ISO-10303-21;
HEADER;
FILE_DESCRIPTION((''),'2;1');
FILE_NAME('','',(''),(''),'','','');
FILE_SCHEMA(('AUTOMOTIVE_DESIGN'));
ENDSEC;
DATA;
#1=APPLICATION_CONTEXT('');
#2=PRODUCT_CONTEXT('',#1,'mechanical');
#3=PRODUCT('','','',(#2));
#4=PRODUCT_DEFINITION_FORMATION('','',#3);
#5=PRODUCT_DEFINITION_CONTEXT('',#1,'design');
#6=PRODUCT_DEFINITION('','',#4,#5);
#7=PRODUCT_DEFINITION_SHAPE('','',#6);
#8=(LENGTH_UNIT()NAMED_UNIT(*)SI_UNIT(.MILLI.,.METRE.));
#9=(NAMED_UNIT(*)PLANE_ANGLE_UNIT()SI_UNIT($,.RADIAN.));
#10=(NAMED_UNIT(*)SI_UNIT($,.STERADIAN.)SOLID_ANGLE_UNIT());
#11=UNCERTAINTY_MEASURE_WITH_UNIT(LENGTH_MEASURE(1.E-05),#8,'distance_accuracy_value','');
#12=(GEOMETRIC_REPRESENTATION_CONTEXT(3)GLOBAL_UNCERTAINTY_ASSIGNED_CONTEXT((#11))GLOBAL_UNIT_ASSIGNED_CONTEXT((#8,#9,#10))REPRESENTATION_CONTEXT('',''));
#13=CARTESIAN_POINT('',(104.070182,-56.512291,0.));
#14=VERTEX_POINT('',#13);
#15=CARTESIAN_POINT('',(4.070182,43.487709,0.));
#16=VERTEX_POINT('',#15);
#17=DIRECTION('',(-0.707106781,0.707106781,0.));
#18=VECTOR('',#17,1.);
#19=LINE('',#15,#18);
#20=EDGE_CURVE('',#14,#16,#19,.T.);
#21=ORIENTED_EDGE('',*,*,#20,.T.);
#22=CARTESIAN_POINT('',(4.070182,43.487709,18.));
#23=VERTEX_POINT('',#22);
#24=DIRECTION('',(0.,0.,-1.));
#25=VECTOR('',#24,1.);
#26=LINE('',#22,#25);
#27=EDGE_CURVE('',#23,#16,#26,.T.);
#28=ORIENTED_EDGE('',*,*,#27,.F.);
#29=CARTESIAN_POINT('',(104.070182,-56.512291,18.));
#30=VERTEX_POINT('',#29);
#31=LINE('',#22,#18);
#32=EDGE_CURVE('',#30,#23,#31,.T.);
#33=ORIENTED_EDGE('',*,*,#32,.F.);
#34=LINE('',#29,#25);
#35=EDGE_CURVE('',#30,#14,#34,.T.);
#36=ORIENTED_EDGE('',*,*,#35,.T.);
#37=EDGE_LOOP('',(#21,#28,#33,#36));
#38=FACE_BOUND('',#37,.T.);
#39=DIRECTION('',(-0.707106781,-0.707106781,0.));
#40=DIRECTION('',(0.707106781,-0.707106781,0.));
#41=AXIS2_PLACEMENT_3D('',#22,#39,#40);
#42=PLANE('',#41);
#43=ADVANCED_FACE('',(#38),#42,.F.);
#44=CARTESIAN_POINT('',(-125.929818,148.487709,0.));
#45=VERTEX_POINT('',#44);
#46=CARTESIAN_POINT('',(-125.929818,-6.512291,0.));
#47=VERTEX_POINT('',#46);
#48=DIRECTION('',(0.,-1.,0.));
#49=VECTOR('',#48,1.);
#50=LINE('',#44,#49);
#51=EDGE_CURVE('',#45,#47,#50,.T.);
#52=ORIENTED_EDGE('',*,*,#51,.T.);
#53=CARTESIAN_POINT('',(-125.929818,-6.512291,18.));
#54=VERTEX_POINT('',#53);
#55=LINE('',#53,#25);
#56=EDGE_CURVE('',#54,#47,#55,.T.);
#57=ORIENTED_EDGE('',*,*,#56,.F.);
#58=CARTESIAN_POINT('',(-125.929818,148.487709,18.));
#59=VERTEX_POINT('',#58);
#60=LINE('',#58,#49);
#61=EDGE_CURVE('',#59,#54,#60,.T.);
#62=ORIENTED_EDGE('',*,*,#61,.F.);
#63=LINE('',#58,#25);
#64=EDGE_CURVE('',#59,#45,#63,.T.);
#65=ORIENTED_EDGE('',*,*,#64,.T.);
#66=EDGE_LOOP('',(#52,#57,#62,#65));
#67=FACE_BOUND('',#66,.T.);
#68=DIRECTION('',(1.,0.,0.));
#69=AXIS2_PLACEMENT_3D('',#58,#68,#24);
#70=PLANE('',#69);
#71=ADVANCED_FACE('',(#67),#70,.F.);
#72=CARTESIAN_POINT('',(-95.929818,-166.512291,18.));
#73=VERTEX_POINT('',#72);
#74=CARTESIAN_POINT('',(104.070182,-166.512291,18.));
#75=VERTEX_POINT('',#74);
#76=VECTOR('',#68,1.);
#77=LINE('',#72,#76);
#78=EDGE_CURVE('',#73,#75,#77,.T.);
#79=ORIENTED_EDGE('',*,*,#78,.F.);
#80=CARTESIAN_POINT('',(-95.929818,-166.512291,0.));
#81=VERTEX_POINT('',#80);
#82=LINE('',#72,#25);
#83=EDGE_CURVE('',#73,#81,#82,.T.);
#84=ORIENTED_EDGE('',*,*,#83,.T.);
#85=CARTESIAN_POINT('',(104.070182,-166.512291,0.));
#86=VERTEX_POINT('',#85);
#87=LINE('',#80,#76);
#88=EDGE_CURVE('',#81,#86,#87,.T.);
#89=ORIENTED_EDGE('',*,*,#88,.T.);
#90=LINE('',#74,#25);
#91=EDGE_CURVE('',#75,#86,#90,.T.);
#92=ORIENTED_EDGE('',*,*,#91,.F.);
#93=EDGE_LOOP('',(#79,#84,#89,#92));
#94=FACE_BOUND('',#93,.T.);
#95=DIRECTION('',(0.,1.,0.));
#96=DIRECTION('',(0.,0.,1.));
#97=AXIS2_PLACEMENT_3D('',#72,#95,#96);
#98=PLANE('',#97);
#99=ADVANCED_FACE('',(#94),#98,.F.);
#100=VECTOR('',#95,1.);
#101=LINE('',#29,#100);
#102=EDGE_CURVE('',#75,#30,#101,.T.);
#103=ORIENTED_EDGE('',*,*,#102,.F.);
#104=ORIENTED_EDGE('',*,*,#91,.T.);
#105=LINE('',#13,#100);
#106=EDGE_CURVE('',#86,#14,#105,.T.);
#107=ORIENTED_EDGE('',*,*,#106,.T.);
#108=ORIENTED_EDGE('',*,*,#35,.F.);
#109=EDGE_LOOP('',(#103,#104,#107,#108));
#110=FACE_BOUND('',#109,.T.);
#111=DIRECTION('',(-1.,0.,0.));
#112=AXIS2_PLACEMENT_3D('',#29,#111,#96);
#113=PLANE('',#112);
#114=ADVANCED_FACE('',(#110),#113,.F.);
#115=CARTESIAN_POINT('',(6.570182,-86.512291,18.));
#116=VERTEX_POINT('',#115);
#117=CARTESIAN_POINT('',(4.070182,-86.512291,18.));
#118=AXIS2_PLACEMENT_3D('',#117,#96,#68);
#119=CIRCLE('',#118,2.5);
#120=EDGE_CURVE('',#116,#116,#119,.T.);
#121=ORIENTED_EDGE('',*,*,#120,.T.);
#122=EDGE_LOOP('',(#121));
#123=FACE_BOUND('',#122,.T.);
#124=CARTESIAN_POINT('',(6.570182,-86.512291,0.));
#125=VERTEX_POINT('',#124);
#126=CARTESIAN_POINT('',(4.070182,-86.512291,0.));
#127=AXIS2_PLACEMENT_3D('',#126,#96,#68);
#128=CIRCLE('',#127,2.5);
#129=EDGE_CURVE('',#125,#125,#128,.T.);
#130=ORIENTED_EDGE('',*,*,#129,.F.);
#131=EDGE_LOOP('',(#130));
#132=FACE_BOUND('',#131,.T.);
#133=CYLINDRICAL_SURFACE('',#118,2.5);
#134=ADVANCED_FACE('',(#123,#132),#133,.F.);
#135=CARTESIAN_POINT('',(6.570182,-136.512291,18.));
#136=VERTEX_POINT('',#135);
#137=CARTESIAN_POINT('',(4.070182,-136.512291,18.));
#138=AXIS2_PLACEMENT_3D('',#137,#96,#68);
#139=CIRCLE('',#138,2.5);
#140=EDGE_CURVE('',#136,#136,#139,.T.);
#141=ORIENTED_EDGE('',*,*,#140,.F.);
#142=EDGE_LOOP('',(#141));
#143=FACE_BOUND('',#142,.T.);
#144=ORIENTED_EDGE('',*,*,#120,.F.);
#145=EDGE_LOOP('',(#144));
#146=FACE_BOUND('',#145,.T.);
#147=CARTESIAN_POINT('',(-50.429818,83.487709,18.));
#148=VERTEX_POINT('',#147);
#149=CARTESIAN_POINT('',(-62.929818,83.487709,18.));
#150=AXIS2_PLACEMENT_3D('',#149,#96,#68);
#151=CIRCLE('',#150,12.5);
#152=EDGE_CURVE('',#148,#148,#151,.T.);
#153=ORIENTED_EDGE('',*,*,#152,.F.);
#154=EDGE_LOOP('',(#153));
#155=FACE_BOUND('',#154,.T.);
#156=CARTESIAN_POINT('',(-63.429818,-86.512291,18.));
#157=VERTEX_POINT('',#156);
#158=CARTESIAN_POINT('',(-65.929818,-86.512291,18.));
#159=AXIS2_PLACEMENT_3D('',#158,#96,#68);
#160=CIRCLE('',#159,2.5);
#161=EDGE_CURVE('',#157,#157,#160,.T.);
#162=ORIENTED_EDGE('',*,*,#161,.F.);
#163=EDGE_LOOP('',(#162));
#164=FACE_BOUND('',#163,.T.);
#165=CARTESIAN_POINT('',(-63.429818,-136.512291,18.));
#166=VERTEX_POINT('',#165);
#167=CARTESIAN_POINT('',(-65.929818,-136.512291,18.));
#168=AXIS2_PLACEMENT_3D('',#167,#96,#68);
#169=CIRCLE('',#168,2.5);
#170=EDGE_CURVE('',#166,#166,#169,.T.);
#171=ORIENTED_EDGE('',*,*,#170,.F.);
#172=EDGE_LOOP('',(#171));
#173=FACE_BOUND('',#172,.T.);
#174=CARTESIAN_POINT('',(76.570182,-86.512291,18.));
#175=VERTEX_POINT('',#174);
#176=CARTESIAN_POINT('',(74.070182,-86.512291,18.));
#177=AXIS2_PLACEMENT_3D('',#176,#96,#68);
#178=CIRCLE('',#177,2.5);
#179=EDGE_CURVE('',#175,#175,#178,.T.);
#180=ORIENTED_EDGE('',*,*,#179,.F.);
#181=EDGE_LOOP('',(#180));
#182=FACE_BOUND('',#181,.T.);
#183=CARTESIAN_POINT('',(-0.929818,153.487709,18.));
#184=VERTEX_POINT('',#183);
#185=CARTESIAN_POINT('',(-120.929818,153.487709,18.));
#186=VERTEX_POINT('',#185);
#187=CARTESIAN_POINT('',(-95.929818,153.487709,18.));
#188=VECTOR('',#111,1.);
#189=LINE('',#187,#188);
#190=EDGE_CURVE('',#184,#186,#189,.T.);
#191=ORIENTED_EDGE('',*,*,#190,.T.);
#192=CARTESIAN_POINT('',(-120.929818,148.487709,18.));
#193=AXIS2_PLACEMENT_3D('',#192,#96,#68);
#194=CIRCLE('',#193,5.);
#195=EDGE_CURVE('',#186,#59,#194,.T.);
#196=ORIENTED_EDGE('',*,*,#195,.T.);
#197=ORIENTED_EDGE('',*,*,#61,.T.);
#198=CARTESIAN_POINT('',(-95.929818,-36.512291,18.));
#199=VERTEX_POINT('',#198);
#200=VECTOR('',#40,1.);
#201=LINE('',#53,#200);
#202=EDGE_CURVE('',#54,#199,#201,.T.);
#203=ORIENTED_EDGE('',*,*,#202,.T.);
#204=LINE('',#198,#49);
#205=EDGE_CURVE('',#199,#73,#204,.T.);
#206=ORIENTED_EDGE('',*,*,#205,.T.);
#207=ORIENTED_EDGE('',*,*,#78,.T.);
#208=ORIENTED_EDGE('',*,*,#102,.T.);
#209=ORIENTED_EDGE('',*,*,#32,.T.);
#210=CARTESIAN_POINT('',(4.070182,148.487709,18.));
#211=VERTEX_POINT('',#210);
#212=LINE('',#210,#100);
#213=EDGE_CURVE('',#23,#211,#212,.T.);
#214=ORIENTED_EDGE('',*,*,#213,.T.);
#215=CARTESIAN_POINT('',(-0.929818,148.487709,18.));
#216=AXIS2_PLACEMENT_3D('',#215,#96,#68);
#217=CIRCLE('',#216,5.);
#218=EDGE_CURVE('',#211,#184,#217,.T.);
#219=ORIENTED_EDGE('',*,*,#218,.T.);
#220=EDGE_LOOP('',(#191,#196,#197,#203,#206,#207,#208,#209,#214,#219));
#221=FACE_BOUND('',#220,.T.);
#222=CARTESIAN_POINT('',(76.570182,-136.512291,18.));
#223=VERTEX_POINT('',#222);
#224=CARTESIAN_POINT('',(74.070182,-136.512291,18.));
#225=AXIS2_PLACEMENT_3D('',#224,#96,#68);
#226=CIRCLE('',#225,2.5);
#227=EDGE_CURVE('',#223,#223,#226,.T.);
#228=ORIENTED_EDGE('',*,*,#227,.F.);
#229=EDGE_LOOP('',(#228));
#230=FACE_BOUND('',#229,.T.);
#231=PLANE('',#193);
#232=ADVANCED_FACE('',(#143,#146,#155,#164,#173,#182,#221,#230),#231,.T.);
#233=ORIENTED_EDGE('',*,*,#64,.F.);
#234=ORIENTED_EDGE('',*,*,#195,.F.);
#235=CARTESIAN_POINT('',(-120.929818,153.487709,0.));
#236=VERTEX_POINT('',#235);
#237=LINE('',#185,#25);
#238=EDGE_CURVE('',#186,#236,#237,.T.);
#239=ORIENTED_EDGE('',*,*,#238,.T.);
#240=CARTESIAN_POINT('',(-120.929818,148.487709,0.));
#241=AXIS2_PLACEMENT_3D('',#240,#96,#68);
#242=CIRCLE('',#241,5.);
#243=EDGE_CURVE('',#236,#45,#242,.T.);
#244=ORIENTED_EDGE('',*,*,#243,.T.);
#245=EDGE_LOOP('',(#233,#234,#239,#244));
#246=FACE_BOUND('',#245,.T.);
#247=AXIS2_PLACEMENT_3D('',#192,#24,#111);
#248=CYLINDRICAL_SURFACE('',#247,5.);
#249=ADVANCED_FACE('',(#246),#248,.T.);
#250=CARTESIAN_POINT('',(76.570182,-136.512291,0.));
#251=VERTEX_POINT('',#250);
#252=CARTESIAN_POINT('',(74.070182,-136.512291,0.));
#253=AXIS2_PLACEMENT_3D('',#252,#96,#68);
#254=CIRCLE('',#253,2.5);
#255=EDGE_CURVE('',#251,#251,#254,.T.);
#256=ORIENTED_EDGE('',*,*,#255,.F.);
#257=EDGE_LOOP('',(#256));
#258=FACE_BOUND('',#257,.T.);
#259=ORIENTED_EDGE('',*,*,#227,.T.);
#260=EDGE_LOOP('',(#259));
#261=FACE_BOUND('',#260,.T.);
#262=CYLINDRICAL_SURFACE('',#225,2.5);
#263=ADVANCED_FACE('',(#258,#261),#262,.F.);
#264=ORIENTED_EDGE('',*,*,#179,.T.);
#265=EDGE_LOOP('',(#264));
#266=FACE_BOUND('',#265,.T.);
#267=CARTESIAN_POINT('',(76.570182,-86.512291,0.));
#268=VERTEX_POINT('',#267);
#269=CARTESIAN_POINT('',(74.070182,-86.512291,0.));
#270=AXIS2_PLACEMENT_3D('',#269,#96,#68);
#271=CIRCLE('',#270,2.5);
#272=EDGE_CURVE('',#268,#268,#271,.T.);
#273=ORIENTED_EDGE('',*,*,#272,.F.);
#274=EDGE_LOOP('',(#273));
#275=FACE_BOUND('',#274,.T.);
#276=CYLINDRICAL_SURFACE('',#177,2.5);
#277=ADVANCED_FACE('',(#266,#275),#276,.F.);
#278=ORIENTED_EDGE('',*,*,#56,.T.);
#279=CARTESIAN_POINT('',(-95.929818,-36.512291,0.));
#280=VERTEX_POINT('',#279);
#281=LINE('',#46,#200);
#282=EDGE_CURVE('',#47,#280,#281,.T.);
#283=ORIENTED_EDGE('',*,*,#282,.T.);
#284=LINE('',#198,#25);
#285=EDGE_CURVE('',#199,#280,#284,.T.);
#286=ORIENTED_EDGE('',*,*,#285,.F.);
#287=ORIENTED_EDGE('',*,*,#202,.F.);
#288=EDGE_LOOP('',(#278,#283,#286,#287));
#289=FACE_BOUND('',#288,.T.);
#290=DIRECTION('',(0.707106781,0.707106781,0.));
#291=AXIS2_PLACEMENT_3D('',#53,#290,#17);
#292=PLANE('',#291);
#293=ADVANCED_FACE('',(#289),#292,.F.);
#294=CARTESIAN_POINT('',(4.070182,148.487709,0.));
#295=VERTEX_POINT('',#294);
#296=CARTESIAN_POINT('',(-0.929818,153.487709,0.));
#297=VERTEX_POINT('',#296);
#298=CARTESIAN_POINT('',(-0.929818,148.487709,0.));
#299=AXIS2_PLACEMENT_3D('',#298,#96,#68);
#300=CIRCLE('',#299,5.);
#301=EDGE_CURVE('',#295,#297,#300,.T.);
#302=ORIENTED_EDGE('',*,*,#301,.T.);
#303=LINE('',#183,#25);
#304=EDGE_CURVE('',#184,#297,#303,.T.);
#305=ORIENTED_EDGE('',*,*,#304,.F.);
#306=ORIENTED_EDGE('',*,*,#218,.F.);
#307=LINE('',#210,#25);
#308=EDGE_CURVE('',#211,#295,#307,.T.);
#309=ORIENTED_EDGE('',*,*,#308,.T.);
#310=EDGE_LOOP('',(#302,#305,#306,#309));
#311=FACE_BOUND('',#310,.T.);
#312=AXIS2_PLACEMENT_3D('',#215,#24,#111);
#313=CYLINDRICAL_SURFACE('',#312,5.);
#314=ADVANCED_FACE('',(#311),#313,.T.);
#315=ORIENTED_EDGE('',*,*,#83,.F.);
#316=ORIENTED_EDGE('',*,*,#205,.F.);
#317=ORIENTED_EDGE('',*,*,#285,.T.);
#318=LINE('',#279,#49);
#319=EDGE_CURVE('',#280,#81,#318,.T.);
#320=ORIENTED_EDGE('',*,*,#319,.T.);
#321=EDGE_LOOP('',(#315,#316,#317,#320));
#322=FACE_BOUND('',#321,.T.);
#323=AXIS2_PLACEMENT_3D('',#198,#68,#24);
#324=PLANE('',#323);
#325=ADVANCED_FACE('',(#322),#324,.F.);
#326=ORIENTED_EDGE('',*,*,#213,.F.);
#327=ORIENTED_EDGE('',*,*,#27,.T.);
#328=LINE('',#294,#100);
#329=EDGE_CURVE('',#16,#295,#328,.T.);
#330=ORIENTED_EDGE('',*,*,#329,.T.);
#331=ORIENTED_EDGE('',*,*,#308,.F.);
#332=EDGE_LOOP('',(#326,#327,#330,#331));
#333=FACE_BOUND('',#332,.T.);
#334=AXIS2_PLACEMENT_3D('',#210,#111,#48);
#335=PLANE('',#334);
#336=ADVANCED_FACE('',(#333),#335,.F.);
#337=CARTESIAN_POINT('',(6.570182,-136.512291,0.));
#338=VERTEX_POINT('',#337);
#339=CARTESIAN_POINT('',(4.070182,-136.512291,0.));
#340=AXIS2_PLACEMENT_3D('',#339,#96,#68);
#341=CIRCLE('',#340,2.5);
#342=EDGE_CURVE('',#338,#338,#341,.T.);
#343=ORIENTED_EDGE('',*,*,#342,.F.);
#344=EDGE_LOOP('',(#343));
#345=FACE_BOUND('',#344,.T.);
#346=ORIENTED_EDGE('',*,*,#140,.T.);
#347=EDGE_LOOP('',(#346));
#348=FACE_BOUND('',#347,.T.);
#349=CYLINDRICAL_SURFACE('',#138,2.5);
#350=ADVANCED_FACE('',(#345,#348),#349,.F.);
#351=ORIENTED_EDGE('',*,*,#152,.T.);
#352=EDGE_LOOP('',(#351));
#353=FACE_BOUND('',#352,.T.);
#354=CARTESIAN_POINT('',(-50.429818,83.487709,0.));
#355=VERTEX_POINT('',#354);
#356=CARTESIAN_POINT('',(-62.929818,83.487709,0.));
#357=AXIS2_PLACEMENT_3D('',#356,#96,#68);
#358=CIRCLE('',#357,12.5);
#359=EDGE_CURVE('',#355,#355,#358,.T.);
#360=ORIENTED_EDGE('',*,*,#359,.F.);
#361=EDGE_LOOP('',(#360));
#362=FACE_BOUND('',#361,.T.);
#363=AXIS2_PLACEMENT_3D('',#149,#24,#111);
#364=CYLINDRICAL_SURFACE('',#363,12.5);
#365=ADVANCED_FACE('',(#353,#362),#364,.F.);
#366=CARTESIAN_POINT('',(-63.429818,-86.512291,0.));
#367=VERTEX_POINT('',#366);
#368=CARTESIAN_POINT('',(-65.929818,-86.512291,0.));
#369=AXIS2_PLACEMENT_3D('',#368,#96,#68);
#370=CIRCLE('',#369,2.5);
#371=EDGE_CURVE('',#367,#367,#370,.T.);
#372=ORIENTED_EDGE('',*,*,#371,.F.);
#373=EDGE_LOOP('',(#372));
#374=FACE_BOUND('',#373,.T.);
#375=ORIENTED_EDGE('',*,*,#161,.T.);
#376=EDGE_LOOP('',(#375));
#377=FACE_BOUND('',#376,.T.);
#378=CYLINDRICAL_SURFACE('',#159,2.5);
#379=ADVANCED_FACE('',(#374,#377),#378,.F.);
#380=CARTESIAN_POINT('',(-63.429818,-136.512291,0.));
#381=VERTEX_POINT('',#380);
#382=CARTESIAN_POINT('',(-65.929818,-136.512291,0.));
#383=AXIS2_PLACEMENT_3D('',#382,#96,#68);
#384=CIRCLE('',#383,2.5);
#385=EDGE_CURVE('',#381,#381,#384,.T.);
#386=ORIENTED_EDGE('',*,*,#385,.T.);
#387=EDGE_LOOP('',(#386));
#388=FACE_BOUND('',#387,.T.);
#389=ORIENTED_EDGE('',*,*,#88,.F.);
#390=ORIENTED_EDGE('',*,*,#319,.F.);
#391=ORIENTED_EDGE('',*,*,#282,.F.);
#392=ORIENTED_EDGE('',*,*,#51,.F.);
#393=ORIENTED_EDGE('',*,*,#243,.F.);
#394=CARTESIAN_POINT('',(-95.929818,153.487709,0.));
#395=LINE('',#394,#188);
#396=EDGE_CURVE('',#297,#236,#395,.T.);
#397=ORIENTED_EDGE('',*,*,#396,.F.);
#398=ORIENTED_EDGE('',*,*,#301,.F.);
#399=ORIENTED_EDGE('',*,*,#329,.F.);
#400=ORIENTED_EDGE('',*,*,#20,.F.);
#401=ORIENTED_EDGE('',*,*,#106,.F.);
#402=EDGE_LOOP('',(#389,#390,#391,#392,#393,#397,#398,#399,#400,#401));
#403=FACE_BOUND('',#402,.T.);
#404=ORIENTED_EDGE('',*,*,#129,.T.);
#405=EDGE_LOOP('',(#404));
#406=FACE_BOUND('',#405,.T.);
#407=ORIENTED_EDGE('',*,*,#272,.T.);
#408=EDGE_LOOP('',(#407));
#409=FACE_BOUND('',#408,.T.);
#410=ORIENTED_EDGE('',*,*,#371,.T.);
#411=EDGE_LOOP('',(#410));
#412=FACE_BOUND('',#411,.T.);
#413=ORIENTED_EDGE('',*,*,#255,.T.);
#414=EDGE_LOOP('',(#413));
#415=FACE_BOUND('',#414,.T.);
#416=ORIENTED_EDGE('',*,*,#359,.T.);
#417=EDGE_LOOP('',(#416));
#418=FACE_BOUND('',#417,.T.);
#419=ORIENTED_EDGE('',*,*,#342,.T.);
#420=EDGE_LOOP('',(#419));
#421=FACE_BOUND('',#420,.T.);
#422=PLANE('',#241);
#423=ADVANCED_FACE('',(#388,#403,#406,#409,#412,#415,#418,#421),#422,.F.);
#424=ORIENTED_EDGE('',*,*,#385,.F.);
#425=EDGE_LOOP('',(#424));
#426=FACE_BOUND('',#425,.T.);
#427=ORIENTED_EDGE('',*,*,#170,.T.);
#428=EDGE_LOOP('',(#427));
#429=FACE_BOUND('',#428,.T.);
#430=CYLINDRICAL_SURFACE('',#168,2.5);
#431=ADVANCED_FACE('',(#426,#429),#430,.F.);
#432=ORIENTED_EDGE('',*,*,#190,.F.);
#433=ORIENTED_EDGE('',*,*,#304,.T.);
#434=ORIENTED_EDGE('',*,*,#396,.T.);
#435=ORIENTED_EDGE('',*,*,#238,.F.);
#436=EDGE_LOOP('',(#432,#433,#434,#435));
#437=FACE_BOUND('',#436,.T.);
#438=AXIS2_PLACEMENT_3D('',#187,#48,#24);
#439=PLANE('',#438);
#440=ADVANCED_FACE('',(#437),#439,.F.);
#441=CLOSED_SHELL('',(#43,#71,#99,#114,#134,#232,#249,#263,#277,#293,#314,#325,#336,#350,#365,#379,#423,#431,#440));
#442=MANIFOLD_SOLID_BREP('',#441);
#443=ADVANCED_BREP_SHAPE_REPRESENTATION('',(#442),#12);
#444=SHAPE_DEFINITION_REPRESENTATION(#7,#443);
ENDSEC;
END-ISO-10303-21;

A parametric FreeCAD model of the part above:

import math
import FreeCAD as App
import Part
import Sketcher
from FreeCAD import Vector

doc = App.newDocument("Part")
body = doc.addObject("PartDesign::Body", "Body")

# Sketch on XY plane
sketch1 = doc.addObject("Sketcher::SketchObject", "Sketch")
body.addObject(sketch1)
sketch1.AttachmentSupport = (doc.XY_Plane, [""])
sketch1.MapMode = "FlatFace"
sketch1.addGeometry([
    Part.LineSegment(Vector(4, 43, 0), Vector(4, 148, 0)),  # 0
    Part.ArcOfCircle(Part.Circle(Vector(-1, 148, 0), Vector(0, 0, 1), 5), math.radians(0), math.radians(90)),  # 1
    Part.LineSegment(Vector(-1, 153, 0), Vector(-121, 153, 0)),  # 2
    Part.ArcOfCircle(Part.Circle(Vector(-121, 148, 0), Vector(0, 0, 1), 5), math.radians(90), math.radians(180)),  # 3
    Part.LineSegment(Vector(-126, 148, 0), Vector(-126, -7, 0)),  # 4
    Part.LineSegment(Vector(-126, -7, 0), Vector(-96, -37, 0)),  # 5
    Part.LineSegment(Vector(-96, -37, 0), Vector(-96, -167, 0)),  # 6
    Part.LineSegment(Vector(-96, -167, 0), Vector(104, -167, 0)),  # 7
    Part.LineSegment(Vector(104, -167, 0), Vector(104, -57, 0)),  # 8
    Part.LineSegment(Vector(104, -57, 0), Vector(4, 43, 0)),  # 9
    Part.Circle(Vector(-63, 83, 0), Vector(0, 0, 1), 12),  # 10
], False)
sketch1.addConstraint([
    Sketcher.Constraint("Tangent", 0, 2, 1, 1),
    Sketcher.Constraint("Tangent", 1, 2, 2, 1),
    Sketcher.Constraint("Tangent", 2, 2, 3, 1),
    Sketcher.Constraint("Tangent", 3, 2, 4, 1),
    Sketcher.Constraint("Coincident", 4, 2, 5, 1),
    Sketcher.Constraint("Coincident", 5, 2, 6, 1),
    Sketcher.Constraint("Coincident", 6, 2, 7, 1),
    Sketcher.Constraint("Coincident", 7, 2, 8, 1),
    Sketcher.Constraint("Coincident", 8, 2, 9, 1),
    Sketcher.Constraint("Coincident", 9, 2, 0, 1),
    Sketcher.Constraint("Vertical", 0),
    Sketcher.Constraint("Horizontal", 2),
    Sketcher.Constraint("Vertical", 4),
    Sketcher.Constraint("Vertical", 6),
    Sketcher.Constraint("Horizontal", 7),
    Sketcher.Constraint("Vertical", 8),
    Sketcher.Constraint("Equal", 1, 3),
    Sketcher.Constraint("Parallel", 5, 9),
    Sketcher.Constraint("Diameter", 10, 25.0),
    Sketcher.Constraint("Radius", 1, 5.0),
    Sketcher.Constraint("DistanceX", 2, 2, 2, 1, 120.0),
    Sketcher.Constraint("DistanceX", 7, 1, 7, 2, 200.0),
    Sketcher.Constraint("DistanceY", 0, 1, 0, 2, 105.0),
    Sketcher.Constraint("DistanceY", 4, 2, 4, 1, 155.0),
    Sketcher.Constraint("DistanceY", 6, 2, 6, 1, 130.0),
    Sketcher.Constraint("DistanceY", 8, 1, 8, 2, 110.0),
    Sketcher.Constraint("DistanceX", 3, 3, 10, 3, 58.0),
    Sketcher.Constraint("DistanceY", 10, 3, 3, 3, 65.0),
    Sketcher.Constraint("DistanceX", 4, 2, 5, 2, 30.0),
    Sketcher.Constraint("DistanceX", 1, 3, -1, 1, 0.929818),
    Sketcher.Constraint("DistanceY", -1, 1, 1, 3, 148.487709),
])
pad1 = doc.addObject("PartDesign::Pad", "Pad")
body.addObject(pad1)
pad1.Profile = sketch1
pad1.Length = 18

# Sketch on XY plane
sketch2 = doc.addObject("Sketcher::SketchObject", "Sketch001")
body.addObject(sketch2)
sketch2.AttachmentSupport = (doc.XY_Plane, [""])
sketch2.MapMode = "FlatFace"
sketch2.AttachmentOffset = App.Placement(Vector(0, 0, 18), App.Rotation())
sketch2.addGeometry([
    Part.Circle(Vector(74.1, -86.5, 0), Vector(0, 0, 1), 2.5),  # 0
    Part.Circle(Vector(74.1, -136.5, 0), Vector(0, 0, 1), 2.5),  # 1
    Part.Circle(Vector(4.1, -136.5, 0), Vector(0, 0, 1), 2.5),  # 2
    Part.Circle(Vector(-65.9, -136.5, 0), Vector(0, 0, 1), 2.5),  # 3
    Part.Circle(Vector(-65.9, -86.5, 0), Vector(0, 0, 1), 2.5),  # 4
    Part.Circle(Vector(4.1, -86.5, 0), Vector(0, 0, 1), 2.5),  # 5
], False)
sketch2.addConstraint([
    Sketcher.Constraint("Equal", 0, 1),
    Sketcher.Constraint("Equal", 1, 2),
    Sketcher.Constraint("Equal", 2, 3),
    Sketcher.Constraint("Equal", 3, 4),
    Sketcher.Constraint("Equal", 4, 5),
    Sketcher.Constraint("Horizontal", 1, 3, 2, 3),
    Sketcher.Constraint("Horizontal", 2, 3, 3, 3),
    Sketcher.Constraint("Horizontal", 0, 3, 4, 3),
    Sketcher.Constraint("Horizontal", 4, 3, 5, 3),
    Sketcher.Constraint("Vertical", 0, 3, 1, 3),
    Sketcher.Constraint("Vertical", 3, 3, 4, 3),
    Sketcher.Constraint("Vertical", 2, 3, 5, 3),
    Sketcher.Constraint("Diameter", 0, 5.0),
    Sketcher.Constraint("DistanceY", 1, 3, 0, 3, 50.0),
    Sketcher.Constraint("DistanceX", 2, 3, 1, 3, 70.0),
    Sketcher.Constraint("DistanceX", 3, 3, 2, 3, 70.0),
    Sketcher.Constraint("DistanceX", -1, 1, 0, 3, 74.070182),
    Sketcher.Constraint("DistanceY", 0, 3, -1, 1, 86.512291),
])
doc.recompute()
hole = doc.addObject("PartDesign::Hole", "Hole")
body.addObject(hole)
hole.Profile = sketch2
hole.ThreadType = "None"
hole.Diameter = 5
hole.DepthType = "ThroughAll"

doc.recompute()
